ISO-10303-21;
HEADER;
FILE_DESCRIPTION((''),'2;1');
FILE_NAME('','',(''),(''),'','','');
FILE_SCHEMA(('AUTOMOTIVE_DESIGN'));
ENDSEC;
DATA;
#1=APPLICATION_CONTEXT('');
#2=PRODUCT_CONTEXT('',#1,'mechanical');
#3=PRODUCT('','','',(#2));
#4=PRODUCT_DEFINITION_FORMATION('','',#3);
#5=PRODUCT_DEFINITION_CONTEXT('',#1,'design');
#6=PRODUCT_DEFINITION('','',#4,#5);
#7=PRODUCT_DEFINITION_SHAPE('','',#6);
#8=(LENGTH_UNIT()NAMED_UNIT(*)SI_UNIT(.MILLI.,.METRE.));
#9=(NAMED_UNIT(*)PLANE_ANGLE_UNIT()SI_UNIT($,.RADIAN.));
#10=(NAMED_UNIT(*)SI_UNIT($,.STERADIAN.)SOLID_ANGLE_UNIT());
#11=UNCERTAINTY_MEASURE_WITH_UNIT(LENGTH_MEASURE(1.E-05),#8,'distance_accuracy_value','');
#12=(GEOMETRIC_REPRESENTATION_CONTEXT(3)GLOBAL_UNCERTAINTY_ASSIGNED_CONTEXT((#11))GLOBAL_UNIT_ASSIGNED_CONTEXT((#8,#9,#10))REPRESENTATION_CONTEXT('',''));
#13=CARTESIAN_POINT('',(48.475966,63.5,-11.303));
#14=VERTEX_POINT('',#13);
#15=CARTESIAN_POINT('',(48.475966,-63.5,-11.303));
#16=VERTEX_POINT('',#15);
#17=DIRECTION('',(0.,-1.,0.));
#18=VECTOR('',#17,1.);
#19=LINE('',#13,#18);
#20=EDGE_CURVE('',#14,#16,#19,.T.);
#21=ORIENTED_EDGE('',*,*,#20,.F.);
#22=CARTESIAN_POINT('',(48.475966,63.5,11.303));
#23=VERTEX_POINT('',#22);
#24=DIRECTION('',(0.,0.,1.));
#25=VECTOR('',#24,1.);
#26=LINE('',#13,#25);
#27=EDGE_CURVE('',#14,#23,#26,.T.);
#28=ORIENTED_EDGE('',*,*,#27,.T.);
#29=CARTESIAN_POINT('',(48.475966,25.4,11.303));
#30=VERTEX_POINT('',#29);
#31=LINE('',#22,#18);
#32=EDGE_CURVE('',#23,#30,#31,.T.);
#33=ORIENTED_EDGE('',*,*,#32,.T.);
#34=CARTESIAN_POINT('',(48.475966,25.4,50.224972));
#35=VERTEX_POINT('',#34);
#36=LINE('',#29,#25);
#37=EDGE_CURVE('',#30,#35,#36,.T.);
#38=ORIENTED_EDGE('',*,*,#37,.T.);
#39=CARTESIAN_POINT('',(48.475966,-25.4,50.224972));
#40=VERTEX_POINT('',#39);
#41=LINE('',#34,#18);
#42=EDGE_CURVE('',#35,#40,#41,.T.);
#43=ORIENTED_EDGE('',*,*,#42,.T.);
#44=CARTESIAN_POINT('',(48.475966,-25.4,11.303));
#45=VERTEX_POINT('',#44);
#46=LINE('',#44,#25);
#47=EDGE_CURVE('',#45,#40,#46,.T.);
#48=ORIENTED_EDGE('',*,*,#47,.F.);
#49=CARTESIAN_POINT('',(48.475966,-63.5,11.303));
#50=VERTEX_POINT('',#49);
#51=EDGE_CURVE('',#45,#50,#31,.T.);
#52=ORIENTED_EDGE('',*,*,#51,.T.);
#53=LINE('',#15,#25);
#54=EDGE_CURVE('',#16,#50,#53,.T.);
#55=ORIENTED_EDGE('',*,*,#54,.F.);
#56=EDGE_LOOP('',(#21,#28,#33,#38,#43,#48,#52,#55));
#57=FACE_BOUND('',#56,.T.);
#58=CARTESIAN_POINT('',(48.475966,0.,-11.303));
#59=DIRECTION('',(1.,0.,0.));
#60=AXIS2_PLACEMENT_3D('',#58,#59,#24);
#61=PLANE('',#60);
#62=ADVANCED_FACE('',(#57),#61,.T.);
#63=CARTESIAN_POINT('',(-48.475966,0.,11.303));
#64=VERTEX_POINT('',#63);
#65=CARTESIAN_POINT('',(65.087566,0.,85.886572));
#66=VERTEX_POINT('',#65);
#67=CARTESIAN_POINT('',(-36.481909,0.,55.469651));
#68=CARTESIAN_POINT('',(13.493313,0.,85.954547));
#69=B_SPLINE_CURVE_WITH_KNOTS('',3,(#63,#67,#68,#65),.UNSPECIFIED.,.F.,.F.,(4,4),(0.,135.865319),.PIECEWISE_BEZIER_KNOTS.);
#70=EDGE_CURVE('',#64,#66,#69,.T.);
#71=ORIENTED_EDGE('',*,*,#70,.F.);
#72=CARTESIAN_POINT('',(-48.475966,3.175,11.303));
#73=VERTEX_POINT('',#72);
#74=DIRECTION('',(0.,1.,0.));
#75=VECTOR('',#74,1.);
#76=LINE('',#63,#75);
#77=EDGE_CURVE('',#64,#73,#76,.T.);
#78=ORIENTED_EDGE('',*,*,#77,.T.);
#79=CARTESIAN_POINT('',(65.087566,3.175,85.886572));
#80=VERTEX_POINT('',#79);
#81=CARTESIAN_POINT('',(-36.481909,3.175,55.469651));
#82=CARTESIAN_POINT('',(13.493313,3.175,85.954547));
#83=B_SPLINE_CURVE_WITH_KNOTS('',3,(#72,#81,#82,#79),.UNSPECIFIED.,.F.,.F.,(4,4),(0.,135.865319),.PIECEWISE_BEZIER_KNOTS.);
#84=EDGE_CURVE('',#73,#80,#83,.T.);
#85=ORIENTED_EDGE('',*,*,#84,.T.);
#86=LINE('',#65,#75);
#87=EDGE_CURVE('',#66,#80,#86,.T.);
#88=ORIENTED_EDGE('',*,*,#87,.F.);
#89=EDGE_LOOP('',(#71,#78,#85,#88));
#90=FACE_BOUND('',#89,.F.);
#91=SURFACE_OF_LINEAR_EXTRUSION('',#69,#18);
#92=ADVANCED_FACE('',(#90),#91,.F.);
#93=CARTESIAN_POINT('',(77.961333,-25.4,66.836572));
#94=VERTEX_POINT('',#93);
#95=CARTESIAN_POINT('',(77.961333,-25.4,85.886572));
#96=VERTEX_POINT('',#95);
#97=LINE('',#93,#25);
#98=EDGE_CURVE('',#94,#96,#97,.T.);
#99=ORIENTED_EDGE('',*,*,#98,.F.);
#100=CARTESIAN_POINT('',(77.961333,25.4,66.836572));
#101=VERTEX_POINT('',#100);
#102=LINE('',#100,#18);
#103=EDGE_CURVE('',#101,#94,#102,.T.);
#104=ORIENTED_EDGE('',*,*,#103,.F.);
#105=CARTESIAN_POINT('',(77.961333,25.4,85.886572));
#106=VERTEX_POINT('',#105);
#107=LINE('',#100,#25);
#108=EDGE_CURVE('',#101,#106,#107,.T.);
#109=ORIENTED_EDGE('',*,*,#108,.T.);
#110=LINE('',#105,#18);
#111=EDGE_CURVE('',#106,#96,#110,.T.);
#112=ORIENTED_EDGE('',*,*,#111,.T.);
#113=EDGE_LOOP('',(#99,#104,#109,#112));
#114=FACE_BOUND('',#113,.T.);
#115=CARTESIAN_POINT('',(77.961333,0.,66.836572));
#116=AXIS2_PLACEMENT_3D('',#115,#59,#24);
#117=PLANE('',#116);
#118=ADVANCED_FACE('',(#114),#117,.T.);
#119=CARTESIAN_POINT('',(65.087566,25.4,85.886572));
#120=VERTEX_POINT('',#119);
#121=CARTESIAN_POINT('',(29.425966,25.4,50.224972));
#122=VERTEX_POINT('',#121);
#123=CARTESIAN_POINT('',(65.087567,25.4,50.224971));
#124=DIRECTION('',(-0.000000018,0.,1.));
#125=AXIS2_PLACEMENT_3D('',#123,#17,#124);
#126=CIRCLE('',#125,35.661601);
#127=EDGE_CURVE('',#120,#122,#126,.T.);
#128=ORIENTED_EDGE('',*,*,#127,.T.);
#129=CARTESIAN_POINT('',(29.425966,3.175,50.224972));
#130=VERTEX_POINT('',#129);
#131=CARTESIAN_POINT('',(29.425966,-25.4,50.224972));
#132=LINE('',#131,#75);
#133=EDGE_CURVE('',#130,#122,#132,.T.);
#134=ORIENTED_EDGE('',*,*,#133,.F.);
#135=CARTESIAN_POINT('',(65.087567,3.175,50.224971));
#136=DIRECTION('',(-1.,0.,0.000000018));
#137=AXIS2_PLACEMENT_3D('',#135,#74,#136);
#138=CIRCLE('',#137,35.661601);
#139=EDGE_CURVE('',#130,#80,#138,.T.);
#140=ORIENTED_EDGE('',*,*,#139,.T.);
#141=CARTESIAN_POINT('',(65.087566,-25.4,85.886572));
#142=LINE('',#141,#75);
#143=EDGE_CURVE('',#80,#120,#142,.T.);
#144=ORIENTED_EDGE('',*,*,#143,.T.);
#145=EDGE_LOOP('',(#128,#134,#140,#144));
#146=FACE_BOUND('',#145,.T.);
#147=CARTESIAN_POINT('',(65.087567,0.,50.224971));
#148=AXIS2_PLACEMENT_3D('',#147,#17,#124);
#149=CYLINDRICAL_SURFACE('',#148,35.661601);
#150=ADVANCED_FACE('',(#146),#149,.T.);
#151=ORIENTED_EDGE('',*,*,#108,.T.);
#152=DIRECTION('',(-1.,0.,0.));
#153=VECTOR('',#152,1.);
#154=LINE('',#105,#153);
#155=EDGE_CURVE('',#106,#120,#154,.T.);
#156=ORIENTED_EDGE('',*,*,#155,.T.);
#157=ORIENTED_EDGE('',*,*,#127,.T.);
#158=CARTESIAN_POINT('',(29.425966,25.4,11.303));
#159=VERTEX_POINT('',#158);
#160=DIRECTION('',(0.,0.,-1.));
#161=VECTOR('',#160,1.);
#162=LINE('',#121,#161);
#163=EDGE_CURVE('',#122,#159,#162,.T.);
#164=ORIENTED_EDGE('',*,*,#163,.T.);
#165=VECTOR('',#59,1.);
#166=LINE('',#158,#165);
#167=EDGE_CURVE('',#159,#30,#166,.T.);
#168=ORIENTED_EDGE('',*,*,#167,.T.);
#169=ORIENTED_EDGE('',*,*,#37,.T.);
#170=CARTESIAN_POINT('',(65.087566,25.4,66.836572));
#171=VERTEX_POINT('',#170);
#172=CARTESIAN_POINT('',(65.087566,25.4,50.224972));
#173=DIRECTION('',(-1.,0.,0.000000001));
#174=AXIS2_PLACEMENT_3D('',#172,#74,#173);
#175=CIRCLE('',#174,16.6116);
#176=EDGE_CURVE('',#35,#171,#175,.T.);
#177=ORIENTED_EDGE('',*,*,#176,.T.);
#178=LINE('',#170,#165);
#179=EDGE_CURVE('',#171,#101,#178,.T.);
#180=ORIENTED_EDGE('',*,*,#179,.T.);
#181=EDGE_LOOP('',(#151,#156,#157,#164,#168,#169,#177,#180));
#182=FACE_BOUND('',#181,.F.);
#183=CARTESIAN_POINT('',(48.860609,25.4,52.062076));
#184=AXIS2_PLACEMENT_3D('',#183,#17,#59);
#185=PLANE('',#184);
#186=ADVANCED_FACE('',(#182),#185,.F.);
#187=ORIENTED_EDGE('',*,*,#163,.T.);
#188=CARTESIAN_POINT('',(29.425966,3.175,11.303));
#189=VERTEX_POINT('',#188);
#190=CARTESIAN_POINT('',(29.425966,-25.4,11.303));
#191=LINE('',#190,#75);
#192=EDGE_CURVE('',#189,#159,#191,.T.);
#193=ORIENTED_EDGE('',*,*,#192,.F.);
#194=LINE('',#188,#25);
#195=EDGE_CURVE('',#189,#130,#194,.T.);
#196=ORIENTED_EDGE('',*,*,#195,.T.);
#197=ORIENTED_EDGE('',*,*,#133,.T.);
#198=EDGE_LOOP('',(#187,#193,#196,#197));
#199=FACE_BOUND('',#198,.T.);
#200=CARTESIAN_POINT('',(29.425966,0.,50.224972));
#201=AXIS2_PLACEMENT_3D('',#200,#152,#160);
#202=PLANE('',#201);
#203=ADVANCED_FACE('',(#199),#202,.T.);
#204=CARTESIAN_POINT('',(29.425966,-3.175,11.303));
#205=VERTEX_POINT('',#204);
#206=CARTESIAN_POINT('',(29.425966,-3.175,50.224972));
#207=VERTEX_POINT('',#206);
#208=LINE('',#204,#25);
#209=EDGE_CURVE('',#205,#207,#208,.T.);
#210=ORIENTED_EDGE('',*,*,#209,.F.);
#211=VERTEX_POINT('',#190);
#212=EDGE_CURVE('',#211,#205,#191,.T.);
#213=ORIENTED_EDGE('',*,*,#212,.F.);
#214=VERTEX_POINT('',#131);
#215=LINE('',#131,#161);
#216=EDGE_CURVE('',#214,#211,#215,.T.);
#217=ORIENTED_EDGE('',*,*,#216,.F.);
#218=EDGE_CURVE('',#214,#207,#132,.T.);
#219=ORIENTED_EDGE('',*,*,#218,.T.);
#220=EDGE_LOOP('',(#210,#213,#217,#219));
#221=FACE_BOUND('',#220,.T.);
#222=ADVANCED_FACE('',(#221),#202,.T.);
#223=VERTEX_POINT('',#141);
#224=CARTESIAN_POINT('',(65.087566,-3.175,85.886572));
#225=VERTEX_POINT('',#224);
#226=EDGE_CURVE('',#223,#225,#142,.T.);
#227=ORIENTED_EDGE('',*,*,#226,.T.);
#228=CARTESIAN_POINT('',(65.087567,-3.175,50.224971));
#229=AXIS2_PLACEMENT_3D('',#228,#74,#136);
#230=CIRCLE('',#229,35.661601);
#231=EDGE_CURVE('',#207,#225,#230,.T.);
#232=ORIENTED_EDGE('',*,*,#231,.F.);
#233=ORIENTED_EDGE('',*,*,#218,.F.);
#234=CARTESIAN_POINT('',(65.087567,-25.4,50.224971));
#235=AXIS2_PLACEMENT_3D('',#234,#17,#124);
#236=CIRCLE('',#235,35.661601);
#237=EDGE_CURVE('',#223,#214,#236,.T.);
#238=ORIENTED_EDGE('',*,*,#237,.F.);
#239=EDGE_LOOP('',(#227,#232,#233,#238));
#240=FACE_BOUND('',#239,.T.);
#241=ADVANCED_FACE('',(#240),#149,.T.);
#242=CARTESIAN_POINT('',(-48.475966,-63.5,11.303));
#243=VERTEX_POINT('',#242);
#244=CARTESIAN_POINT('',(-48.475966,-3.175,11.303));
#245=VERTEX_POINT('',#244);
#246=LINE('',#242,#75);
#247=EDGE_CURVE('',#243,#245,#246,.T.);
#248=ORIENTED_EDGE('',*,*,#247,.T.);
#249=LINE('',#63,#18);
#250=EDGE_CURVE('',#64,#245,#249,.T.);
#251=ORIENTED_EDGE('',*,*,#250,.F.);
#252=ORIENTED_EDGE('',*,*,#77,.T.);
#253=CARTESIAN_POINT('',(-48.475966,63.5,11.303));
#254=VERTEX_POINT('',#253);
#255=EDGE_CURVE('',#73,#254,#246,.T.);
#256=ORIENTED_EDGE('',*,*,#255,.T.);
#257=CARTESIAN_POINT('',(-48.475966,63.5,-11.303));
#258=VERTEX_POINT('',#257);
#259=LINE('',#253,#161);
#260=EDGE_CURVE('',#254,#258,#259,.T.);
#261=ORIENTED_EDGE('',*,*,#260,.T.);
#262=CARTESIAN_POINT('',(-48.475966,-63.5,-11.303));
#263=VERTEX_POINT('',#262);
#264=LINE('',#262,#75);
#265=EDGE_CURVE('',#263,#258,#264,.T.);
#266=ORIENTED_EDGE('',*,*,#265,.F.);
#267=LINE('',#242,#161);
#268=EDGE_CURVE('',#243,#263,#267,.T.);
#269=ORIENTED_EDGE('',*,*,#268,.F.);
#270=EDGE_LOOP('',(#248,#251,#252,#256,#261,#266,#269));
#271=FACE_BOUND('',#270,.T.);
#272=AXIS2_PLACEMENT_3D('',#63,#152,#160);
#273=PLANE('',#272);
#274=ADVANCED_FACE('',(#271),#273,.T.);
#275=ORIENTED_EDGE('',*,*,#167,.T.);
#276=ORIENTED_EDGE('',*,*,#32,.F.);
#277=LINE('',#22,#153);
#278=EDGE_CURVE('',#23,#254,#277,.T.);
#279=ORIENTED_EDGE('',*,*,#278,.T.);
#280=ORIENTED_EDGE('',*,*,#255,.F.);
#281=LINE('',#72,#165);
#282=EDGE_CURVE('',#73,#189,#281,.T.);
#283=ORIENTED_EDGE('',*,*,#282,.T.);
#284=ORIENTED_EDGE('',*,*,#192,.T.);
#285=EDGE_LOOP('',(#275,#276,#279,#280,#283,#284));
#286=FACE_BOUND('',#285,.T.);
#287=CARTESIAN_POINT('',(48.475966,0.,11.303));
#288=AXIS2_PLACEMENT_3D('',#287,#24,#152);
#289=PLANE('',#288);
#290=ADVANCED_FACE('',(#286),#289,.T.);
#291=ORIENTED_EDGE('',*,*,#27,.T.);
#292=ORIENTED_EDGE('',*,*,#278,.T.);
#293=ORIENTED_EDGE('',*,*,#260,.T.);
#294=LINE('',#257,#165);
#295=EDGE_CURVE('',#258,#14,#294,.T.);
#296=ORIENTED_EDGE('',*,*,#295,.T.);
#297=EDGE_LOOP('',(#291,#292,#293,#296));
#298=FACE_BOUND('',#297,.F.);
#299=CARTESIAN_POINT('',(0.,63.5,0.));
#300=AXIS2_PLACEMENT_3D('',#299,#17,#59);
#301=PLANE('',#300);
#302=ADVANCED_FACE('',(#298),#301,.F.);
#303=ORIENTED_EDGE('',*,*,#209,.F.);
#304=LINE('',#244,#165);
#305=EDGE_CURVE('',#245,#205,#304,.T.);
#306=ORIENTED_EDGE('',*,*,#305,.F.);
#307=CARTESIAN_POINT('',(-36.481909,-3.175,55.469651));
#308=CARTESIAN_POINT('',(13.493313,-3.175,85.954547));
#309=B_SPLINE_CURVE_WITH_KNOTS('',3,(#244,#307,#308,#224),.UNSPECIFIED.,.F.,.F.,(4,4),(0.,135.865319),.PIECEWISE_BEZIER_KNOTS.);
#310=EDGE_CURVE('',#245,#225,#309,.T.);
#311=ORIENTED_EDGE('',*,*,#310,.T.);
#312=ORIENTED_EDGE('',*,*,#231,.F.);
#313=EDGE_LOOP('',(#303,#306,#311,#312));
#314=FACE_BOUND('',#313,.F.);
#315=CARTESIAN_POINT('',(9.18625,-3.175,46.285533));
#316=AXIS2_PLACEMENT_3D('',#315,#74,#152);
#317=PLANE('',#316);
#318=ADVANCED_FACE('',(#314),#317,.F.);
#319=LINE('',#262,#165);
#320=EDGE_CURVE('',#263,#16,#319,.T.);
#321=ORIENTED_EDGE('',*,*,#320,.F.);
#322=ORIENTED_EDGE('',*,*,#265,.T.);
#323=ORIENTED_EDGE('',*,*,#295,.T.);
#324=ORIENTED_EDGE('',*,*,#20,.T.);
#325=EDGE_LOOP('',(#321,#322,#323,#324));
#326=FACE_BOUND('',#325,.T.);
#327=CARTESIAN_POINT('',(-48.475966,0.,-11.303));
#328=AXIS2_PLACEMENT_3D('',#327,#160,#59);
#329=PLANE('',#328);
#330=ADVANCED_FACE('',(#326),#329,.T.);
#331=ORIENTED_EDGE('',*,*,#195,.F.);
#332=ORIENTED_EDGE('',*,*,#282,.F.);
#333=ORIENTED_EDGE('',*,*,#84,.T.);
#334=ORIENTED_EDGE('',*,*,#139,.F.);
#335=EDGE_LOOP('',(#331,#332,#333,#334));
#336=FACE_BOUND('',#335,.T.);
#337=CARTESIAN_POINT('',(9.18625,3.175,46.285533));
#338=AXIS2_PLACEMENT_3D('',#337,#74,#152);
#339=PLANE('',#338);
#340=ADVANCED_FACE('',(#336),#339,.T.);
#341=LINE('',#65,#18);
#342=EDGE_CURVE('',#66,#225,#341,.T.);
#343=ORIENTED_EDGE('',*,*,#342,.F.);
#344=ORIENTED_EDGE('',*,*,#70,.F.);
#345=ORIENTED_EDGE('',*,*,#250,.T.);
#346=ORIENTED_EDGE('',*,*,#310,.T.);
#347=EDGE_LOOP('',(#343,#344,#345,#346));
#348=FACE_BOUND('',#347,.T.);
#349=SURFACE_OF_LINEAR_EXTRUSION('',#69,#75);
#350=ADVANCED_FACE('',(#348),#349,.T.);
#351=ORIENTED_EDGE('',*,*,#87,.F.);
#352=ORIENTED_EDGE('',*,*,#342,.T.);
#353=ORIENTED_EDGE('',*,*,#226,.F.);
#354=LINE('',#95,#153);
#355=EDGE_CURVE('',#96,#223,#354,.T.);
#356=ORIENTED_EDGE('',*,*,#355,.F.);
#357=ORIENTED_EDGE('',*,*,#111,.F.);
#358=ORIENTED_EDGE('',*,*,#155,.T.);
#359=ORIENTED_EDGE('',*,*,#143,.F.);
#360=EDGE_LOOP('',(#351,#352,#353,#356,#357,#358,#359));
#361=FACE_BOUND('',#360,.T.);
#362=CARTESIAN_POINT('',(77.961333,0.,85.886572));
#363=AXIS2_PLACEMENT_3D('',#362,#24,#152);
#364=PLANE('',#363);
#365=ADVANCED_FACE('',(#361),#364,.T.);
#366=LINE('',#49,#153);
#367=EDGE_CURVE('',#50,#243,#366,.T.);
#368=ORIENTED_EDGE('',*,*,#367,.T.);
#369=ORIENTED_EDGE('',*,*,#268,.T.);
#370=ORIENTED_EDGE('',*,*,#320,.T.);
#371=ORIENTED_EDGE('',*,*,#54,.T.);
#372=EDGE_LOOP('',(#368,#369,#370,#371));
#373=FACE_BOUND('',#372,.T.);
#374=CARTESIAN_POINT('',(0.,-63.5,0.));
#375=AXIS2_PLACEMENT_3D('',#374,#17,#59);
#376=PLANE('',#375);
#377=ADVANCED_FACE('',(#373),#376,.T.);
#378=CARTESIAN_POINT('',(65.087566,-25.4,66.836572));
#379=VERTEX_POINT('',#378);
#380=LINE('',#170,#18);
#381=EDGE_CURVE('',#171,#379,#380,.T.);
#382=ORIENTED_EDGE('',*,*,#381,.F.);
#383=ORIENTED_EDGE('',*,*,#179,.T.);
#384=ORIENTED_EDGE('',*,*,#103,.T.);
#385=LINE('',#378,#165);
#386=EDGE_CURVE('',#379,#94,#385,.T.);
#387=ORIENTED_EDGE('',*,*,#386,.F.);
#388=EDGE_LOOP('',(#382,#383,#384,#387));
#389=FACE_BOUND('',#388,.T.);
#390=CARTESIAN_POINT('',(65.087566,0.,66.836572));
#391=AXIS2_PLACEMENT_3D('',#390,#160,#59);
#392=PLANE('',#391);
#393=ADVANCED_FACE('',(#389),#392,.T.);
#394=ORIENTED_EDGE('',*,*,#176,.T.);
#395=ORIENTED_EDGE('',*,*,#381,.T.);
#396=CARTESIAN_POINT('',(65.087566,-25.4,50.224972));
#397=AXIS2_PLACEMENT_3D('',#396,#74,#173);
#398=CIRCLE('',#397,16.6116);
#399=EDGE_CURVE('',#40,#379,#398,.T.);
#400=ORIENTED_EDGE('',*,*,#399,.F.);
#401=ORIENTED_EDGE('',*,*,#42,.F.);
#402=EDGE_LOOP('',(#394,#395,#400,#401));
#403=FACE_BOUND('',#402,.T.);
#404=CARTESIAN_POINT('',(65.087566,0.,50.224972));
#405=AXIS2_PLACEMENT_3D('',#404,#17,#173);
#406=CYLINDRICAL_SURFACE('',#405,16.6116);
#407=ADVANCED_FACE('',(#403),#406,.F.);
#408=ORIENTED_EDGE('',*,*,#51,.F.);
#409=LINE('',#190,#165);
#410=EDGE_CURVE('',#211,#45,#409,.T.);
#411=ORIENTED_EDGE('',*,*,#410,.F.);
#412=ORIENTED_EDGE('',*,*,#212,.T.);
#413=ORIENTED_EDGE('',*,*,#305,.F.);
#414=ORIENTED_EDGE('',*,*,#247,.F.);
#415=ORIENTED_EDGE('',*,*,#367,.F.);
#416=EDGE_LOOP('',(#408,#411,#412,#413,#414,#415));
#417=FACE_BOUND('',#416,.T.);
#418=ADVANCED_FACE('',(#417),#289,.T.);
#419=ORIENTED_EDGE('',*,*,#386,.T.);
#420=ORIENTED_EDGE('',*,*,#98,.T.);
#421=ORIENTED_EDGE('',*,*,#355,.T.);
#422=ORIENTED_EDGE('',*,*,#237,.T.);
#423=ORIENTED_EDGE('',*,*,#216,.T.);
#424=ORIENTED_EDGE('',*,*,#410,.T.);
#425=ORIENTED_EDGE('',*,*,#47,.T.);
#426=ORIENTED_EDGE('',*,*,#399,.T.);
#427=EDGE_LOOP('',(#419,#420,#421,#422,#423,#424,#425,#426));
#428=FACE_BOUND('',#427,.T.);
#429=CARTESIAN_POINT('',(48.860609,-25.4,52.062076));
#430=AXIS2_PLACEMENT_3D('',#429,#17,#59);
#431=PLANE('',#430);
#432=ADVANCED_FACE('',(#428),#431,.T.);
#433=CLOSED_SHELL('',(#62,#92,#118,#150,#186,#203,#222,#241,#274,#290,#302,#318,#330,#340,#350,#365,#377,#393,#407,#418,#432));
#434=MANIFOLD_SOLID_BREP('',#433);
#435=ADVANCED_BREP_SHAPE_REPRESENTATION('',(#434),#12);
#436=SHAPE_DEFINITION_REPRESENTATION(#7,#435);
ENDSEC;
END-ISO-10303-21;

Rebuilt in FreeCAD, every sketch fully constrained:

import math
import FreeCAD as App
import Part
import Sketcher

V = App.Vector
Q = App.Units.Quantity


def add_polygon(sketch, points):
    """Adds a closed chain of lines whose ends are joined by coincident constraints."""
    first, n = sketch.GeometryCount, len(points)
    for a, b in zip(points, points[1:] + points[:1]):
        sketch.addGeometry(Part.LineSegment(App.Vector(*a, 0), App.Vector(*b, 0)), False)
    for i in range(n):
        sketch.addConstraint(Sketcher.Constraint("Coincident", first + i, 2, first + (i + 1) % n, 1))

doc = App.newDocument("Part")
body = doc.addObject("PartDesign::Body", "Body")

sketch1 = body.newObject("Sketcher::SketchObject", "Sketch")
sketch1.AttachmentSupport = (doc.getObject("XZ_Plane"), [""])
sketch1.MapMode = "FlatFace"
add_polygon(sketch1, [(-48, -11), (48, -11), (48, 11), (-48, 11)])
sketch1.addConstraint(Sketcher.Constraint("Horizontal", 0))
sketch1.addConstraint(Sketcher.Constraint("Vertical", 1))
sketch1.addConstraint(Sketcher.Constraint("Horizontal", 2))
sketch1.addConstraint(Sketcher.Constraint("Vertical", 3))
sketch1.addConstraint(Sketcher.Constraint("Symmetric", 0, 2, 2, 2, -1, 1))
sketch1.addConstraint(Sketcher.Constraint("DistanceY", 1, 1, 1, 2, Q("0.89 in")))
sketch1.addConstraint(Sketcher.Constraint("DistanceX", 0, 1, 0, 2, 96.951932))
pad1 = body.newObject("PartDesign::Pad", "Pad")
pad1.Profile = sketch1
pad1.Length = Q("5 in")
pad1.Midplane = True

sketch2 = body.newObject("Sketcher::SketchObject", "Sketch001")
sketch2.AttachmentSupport = (doc.getObject("XZ_Plane"), [""])
sketch2.MapMode = "FlatFace"
sketch2.addGeometry(Part.LineSegment(V(29, 11, 0), V(48, 11, 0)), False)
sketch2.addGeometry(Part.LineSegment(V(48, 11, 0), V(48, 50, 0)), False)
sketch2.addGeometry(Part.ArcOfCircle(Part.Circle(V(65, 50, 0), V(0, 0, 1), 17), math.radians(90), math.radians(180)), False)
sketch2.addGeometry(Part.LineSegment(V(65, 67, 0), V(78, 67, 0)), False)
sketch2.addGeometry(Part.LineSegment(V(78, 67, 0), V(78, 86, 0)), False)
sketch2.addGeometry(Part.LineSegment(V(78, 86, 0), V(65, 86, 0)), False)
sketch2.addGeometry(Part.ArcOfCircle(Part.Circle(V(65, 50, 0), V(0, 0, 1), 36), math.radians(90), math.radians(180)), False)
sketch2.addGeometry(Part.LineSegment(V(29, 50, 0), V(29, 11, 0)), False)
sketch2.addConstraint(Sketcher.Constraint("Coincident", 0, 2, 1, 1))
sketch2.addConstraint(Sketcher.Constraint("Tangent", 1, 2, 2, 2))
sketch2.addConstraint(Sketcher.Constraint("Tangent", 2, 1, 3, 1))
sketch2.addConstraint(Sketcher.Constraint("Coincident", 3, 2, 4, 1))
sketch2.addConstraint(Sketcher.Constraint("Coincident", 4, 2, 5, 1))
sketch2.addConstraint(Sketcher.Constraint("Tangent", 5, 2, 6, 1))
sketch2.addConstraint(Sketcher.Constraint("Tangent", 6, 2, 7, 1))
sketch2.addConstraint(Sketcher.Constraint("Coincident", 7, 2, 0, 1))
sketch2.addConstraint(Sketcher.Constraint("Horizontal", 0))
sketch2.addConstraint(Sketcher.Constraint("Vertical", 1))
sketch2.addConstraint(Sketcher.Constraint("Horizontal", 3))
sketch2.addConstraint(Sketcher.Constraint("Vertical", 4))
sketch2.addConstraint(Sketcher.Constraint("Horizontal", 5))
sketch2.addConstraint(Sketcher.Constraint("Vertical", 7))
sketch2.addConstraint(Sketcher.Constraint("Coincident", 6, 3, 2, 3))
sketch2.addConstraint(Sketcher.Constraint("Radius", 2, Q("0.654 in")))
sketch2.addConstraint(Sketcher.Constraint("Radius", 6, Q("1.404 in")))
sketch2.addConstraint(Sketcher.Constraint("DistanceY", -1, 1, 0, 2, Q("0.445 in")))
sketch2.addConstraint(Sketcher.Constraint("DistanceY", 1, 1, 1, 2, 38.921972))
sketch2.addConstraint(Sketcher.Constraint("DistanceX", 3, 1, 3, 2, 12.873767))
sketch2.addConstraint(Sketcher.Constraint("DistanceX", -1, 1, 2, 3, 65.087566))
pad2 = body.newObject("PartDesign::Pad", "Pad001")
pad2.Profile = sketch2
pad2.Length = Q("2 in")
pad2.Midplane = True

sketch3 = body.newObject("Sketcher::SketchObject", "Sketch002")
sketch3.AttachmentSupport = (doc.getObject("XZ_Plane"), [""])
sketch3.MapMode = "FlatFace"
sketch3.addGeometry(Part.BSplineCurve([V(-48.475966, 11.303, 0), V(-36.481909, 55.469651, 0), V(13.493313, 85.954547, 0), V(65.087566, 85.886572, 0)], [4, 4], [0, 135.865319], False, 3, [1, 1, 1, 1], False), False)
sketch3.addGeometry(Part.LineSegment(V(-48.475966, 11.303, 0), V(29.425966, 11.303, 0)), False)
sketch3.addGeometry(Part.LineSegment(V(29.425966, 11.303, 0), V(29.425966, 50.224972, 0)), False)
sketch3.addGeometry(Part.ArcOfCircle(Part.Circle(V(65.087567, 50.224971, 0), V(0, 0, 1), 35.661601), math.radians(90.000001), math.radians(179.999999)), False)
sketch3.addConstraint(Sketcher.Constraint("Block", 0))
sketch3.addConstraint(Sketcher.Constraint("Coincident", 0, 1, 1, 1))
sketch3.addConstraint(Sketcher.Constraint("Coincident", 1, 2, 2, 1))
sketch3.addConstraint(Sketcher.Constraint("Tangent", 2, 2, 3, 2))
sketch3.addConstraint(Sketcher.Constraint("Coincident", 3, 1, 0, 2))
sketch3.addConstraint(Sketcher.Constraint("Horizontal", 1))
sketch3.addConstraint(Sketcher.Constraint("Vertical", 2))
sketch3.addConstraint(Sketcher.Constraint("Radius", 3, Q("1.404 in")))
sketch3.addConstraint(Sketcher.Constraint("DistanceX", 2, 2, 3, 1, Q("1.404 in")))
pad3 = body.newObject("PartDesign::Pad", "Pad002")
pad3.Profile = sketch3
pad3.Length = Q("0.25 in")
pad3.Midplane = True

doc.recompute()
